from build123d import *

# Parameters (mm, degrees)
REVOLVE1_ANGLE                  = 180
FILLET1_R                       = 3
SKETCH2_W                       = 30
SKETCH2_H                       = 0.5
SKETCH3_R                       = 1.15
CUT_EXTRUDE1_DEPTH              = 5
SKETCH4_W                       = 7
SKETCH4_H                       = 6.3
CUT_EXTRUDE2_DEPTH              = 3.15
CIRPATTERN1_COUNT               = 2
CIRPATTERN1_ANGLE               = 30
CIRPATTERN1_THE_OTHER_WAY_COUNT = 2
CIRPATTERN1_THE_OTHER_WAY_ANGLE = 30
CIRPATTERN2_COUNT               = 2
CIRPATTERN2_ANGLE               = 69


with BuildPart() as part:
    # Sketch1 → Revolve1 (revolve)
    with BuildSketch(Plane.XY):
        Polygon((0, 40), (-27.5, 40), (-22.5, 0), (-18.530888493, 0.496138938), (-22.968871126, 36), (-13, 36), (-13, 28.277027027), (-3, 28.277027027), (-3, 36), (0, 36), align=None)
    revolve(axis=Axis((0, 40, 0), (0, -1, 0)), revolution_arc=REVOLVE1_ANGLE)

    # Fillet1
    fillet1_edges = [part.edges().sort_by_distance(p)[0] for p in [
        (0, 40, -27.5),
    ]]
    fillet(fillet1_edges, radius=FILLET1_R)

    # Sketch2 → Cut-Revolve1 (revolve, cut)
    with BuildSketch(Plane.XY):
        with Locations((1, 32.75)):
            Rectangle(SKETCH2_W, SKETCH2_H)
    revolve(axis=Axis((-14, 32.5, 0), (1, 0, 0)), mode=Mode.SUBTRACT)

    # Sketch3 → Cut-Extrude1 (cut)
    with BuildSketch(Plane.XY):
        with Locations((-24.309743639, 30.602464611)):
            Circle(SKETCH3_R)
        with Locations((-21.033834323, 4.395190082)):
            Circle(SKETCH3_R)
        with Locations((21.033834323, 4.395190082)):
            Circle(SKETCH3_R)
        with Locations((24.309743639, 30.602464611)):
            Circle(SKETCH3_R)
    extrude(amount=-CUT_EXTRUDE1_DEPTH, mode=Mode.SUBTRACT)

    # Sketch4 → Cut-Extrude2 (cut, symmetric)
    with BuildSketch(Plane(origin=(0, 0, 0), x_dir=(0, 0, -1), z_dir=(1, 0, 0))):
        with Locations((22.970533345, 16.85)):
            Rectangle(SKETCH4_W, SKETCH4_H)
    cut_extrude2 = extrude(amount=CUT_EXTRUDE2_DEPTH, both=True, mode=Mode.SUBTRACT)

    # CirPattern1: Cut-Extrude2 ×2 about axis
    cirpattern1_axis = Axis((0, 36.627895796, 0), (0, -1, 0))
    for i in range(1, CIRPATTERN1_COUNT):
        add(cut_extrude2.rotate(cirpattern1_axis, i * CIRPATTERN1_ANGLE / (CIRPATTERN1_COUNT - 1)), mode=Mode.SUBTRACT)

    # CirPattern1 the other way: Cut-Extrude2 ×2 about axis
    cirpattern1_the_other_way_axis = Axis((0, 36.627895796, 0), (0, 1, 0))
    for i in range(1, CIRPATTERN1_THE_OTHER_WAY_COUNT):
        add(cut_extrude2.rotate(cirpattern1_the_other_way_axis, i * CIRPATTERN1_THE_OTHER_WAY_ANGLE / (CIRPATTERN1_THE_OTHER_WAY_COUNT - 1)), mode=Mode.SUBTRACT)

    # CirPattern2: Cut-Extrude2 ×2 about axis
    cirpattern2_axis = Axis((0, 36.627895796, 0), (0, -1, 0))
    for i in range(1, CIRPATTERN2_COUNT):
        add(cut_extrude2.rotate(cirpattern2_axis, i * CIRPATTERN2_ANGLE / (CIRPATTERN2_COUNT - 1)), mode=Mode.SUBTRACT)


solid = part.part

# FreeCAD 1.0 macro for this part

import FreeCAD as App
import Part
import Sketcher
from FreeCAD import Vector
Q = App.Units.Quantity


def edges_at(feature, points):
    """Names of the edges that pass closest to the given points."""
    edges = feature.Shape.Edges
    near = lambda p: min(range(len(edges)), key=lambda i: edges[i].distToShape(Part.Vertex(*p))[0])
    return sorted({f"Edge{near(p) + 1}" for p in points})


def add_polygon(sketch, points):
    """Adds a closed chain of lines whose ends are joined by coincident constraints."""
    first, n = sketch.GeometryCount, len(points)
    for a, b in zip(points, points[1:] + points[:1]):
        sketch.addGeometry(Part.LineSegment(App.Vector(*a, 0), App.Vector(*b, 0)), False)
    for i in range(n):
        sketch.addConstraint(Sketcher.Constraint("Coincident", first + i, 2, first + (i + 1) % n, 1))

doc = App.newDocument("Part")
body = doc.addObject("PartDesign::Body", "Body")

# Sketch on XY plane
sketch1 = doc.addObject("Sketcher::SketchObject", "Sketch")
body.addObject(sketch1)
sketch1.AttachmentSupport = (doc.XY_Plane, [""])
sketch1.MapMode = "FlatFace"
add_polygon(sketch1, [(0, 40), (-27.5, 40), (-22.5, 0), (-18.530888, 0.496139), (-22.968871, 36), (-13, 36), (-13, 28.277027), (-3, 28.277027), (-3, 36), (0, 36)])  # lines 0-9
sketch1.addConstraint(Sketcher.Constraint("Horizontal", 0))
sketch1.addConstraint(Sketcher.Constraint("Horizontal", 4))
sketch1.addConstraint(Sketcher.Constraint("Vertical", 5))
sketch1.addConstraint(Sketcher.Constraint("Horizontal", 6))
sketch1.addConstraint(Sketcher.Constraint("Vertical", 7))
sketch1.addConstraint(Sketcher.Constraint("Horizontal", 8))
sketch1.addConstraint(Sketcher.Constraint("Vertical", 9))
sketch1.addConstraint(Sketcher.Constraint("PointOnObject", 1, 2, -1))
sketch1.addConstraint(Sketcher.Constraint("PointOnObject", 8, 2, -2))
sketch1.addConstraint(Sketcher.Constraint("Perpendicular", 1, 2))
sketch1.addConstraint(Sketcher.Constraint("Perpendicular", 2, 3))
sketch1.addConstraint(Sketcher.Constraint("Horizontal", 4, 2, 7, 2))
sketch1.addConstraint(Sketcher.Constraint("DistanceX", 6, 1, 6, 2, Q("10 mm")))
sketch1.addConstraint(Sketcher.Constraint("DistanceX", 8, 1, 8, 2, Q("3 mm")))
sketch1.addConstraint(Sketcher.Constraint("DistanceY", 9, 1, 9, 2, Q("4 mm")))
sketch1.addConstraint(Sketcher.Constraint("Distance", 2, Q("4 mm")))
sketch1.addConstraint(Sketcher.Constraint("DistanceX", 0, 2, 0, 1, Q("27.5 mm")))
sketch1.addConstraint(Sketcher.Constraint("DistanceY", -1, 1, 0, 2, Q("40 mm")))
sketch1.addConstraint(Sketcher.Constraint("DistanceX", 0, 2, 1, 2, Q("5 mm")))
sketch1.addConstraint(Sketcher.Constraint("DistanceY", 5, 2, 5, 1, Q("7.722973 mm")))
revolution = doc.addObject("PartDesign::Revolution", "Revolution")
body.addObject(revolution)
revolution.Profile = sketch1
revolution.ReferenceAxis = (sketch1, ["V_Axis"])
revolution.Angle = 180
revolution.Reversed = True
doc.recompute()

fillet = doc.addObject("PartDesign::Fillet", "Fillet")
body.addObject(fillet)
fillet.Base = (revolution, edges_at(revolution, [(0, 40, -27.5)]))
fillet.Radius = 3

# Sketch on XY plane
sketch2 = doc.addObject("Sketcher::SketchObject", "Sketch001")
body.addObject(sketch2)
sketch2.AttachmentSupport = (doc.XY_Plane, [""])
sketch2.MapMode = "FlatFace"
add_polygon(sketch2, [(-14, 33), (-14, 32.5), (16, 32.5), (16, 33)])  # lines 0-3
sketch2.addGeometry(Part.LineSegment(Vector(-14, 32.5, 0), Vector(16, 32.5, 0)), True)  # axis
sketch2.addConstraint(Sketcher.Constraint("Vertical", 0))
sketch2.addConstraint(Sketcher.Constraint("Horizontal", 1))
sketch2.addConstraint(Sketcher.Constraint("Vertical", 2))
sketch2.addConstraint(Sketcher.Constraint("Horizontal", 3))
sketch2.addConstraint(Sketcher.Constraint("Horizontal", 4))
sketch2.addConstraint(Sketcher.Constraint("Coincident", 4, 1, 0, 2))
sketch2.addConstraint(Sketcher.Constraint("Vertical", 2, 2, 4, 2))
sketch2.addConstraint(Sketcher.Constraint("DistanceX", 1, 1, 1, 2, Q("30 mm")))
sketch2.addConstraint(Sketcher.Constraint("DistanceY", 0, 2, 0, 1, Q("0.5 mm")))
sketch2.addConstraint(Sketcher.Constraint("DistanceX", 0, 2, -1, 1, Q("14 mm")))
sketch2.addConstraint(Sketcher.Constraint("DistanceY", -1, 1, 2, 2, Q("33 mm")))
groove = doc.addObject("PartDesign::Groove", "Groove")
body.addObject(groove)
groove.Profile = sketch2
groove.ReferenceAxis = (sketch2, ["Axis0"])
groove.Angle = 360

# Sketch on XY plane
sketch3 = doc.addObject("Sketcher::SketchObject", "Sketch002")
body.addObject(sketch3)
sketch3.AttachmentSupport = (doc.XY_Plane, [""])
sketch3.MapMode = "FlatFace"
sketch3.addGeometry(Part.Circle(Vector(-24.309744, 30.602465, 0), Vector(0, 0, 1), 1.15), False)
sketch3.addGeometry(Part.Circle(Vector(-21.033834, 4.39519, 0), Vector(0, 0, 1), 1.15), False)
sketch3.addGeometry(Part.Circle(Vector(21.033834, 4.39519, 0), Vector(0, 0, 1), 1.15), False)
sketch3.addGeometry(Part.Circle(Vector(24.309744, 30.602465, 0), Vector(0, 0, 1), 1.15), False)
sketch3.addConstraint(Sketcher.Constraint("Equal", 0, 1))
sketch3.addConstraint(Sketcher.Constraint("Equal", 1, 2))
sketch3.addConstraint(Sketcher.Constraint("Equal", 2, 3))
sketch3.addConstraint(Sketcher.Constraint("Symmetric", 1, 3, 2, 3, -2))
sketch3.addConstraint(Sketcher.Constraint("Symmetric", 0, 3, 3, 3, -2))
sketch3.addConstraint(Sketcher.Constraint("Diameter", 0, Q("2.3 mm")))
sketch3.addConstraint(Sketcher.Constraint("DistanceY", -1, 1, 1, 3, Q("4.39519 mm")))
sketch3.addConstraint(Sketcher.Constraint("DistanceX", 0, 3, 1, 3, Q("3.275909 mm")))
sketch3.addConstraint(Sketcher.Constraint("DistanceX", 1, 3, 2, 3, Q("42.067669 mm")))
sketch3.addConstraint(Sketcher.Constraint("DistanceY", -1, 1, 0, 3, Q("30.602465 mm")))
pocket1 = doc.addObject("PartDesign::Pocket", "Pocket")
body.addObject(pocket1)
pocket1.Profile = sketch3
pocket1.Length = 5

# Sketch on YZ plane
sketch4 = doc.addObject("Sketcher::SketchObject", "Sketch003")
body.addObject(sketch4)
sketch4.AttachmentSupport = (doc.YZ_Plane, [""])
sketch4.MapMode = "FlatFace"
add_polygon(sketch4, [(20, -19.470533), (13.7, -19.470533), (13.7, -26.470533), (20, -26.470533)])  # lines 0-3
sketch4.addConstraint(Sketcher.Constraint("Horizontal", 0))
sketch4.addConstraint(Sketcher.Constraint("Vertical", 1))
sketch4.addConstraint(Sketcher.Constraint("Horizontal", 2))
sketch4.addConstraint(Sketcher.Constraint("Vertical", 3))
sketch4.addConstraint(Sketcher.Constraint("DistanceY", 1, 2, 1, 1, Q("7 mm")))
sketch4.addConstraint(Sketcher.Constraint("DistanceX", 0, 2, 0, 1, Q("6.3 mm")))
sketch4.addConstraint(Sketcher.Constraint("DistanceX", -1, 1, 2, 2, Q("20 mm")))
sketch4.addConstraint(Sketcher.Constraint("DistanceY", 0, 2, -1, 1, Q("19.470533 mm")))
pocket2 = doc.addObject("PartDesign::Pocket", "Pocket001")
body.addObject(pocket2)
pocket2.Profile = sketch4
pocket2.Length = 6.3
pocket2.Midplane = True
doc.recompute()

polarpattern = doc.addObject("PartDesign::PolarPattern", "PolarPattern")
body.addObject(polarpattern)
polarpattern.Originals = [pocket2]
polarpattern.Axis = (doc.Y_Axis, [""])
polarpattern.Angle = 30
polarpattern.Occurrences = 2
polarpattern.Reversed = True
body.Tip = polarpattern
doc.recompute()

polarpattern2 = doc.addObject("PartDesign::PolarPattern", "PolarPattern001")
body.addObject(polarpattern2)
polarpattern2.Originals = [pocket2]
polarpattern2.Axis = (doc.Y_Axis, [""])
polarpattern2.Angle = 30
polarpattern2.Occurrences = 2
body.Tip = polarpattern2
doc.recompute()

polarpattern3 = doc.addObject("PartDesign::PolarPattern", "PolarPattern002")
body.addObject(polarpattern3)
polarpattern3.Originals = [pocket2]
polarpattern3.Axis = (doc.Y_Axis, [""])
polarpattern3.Angle = 69
polarpattern3.Occurrences = 2
polarpattern3.Reversed = True
body.Tip = polarpattern3

doc.recompute()
